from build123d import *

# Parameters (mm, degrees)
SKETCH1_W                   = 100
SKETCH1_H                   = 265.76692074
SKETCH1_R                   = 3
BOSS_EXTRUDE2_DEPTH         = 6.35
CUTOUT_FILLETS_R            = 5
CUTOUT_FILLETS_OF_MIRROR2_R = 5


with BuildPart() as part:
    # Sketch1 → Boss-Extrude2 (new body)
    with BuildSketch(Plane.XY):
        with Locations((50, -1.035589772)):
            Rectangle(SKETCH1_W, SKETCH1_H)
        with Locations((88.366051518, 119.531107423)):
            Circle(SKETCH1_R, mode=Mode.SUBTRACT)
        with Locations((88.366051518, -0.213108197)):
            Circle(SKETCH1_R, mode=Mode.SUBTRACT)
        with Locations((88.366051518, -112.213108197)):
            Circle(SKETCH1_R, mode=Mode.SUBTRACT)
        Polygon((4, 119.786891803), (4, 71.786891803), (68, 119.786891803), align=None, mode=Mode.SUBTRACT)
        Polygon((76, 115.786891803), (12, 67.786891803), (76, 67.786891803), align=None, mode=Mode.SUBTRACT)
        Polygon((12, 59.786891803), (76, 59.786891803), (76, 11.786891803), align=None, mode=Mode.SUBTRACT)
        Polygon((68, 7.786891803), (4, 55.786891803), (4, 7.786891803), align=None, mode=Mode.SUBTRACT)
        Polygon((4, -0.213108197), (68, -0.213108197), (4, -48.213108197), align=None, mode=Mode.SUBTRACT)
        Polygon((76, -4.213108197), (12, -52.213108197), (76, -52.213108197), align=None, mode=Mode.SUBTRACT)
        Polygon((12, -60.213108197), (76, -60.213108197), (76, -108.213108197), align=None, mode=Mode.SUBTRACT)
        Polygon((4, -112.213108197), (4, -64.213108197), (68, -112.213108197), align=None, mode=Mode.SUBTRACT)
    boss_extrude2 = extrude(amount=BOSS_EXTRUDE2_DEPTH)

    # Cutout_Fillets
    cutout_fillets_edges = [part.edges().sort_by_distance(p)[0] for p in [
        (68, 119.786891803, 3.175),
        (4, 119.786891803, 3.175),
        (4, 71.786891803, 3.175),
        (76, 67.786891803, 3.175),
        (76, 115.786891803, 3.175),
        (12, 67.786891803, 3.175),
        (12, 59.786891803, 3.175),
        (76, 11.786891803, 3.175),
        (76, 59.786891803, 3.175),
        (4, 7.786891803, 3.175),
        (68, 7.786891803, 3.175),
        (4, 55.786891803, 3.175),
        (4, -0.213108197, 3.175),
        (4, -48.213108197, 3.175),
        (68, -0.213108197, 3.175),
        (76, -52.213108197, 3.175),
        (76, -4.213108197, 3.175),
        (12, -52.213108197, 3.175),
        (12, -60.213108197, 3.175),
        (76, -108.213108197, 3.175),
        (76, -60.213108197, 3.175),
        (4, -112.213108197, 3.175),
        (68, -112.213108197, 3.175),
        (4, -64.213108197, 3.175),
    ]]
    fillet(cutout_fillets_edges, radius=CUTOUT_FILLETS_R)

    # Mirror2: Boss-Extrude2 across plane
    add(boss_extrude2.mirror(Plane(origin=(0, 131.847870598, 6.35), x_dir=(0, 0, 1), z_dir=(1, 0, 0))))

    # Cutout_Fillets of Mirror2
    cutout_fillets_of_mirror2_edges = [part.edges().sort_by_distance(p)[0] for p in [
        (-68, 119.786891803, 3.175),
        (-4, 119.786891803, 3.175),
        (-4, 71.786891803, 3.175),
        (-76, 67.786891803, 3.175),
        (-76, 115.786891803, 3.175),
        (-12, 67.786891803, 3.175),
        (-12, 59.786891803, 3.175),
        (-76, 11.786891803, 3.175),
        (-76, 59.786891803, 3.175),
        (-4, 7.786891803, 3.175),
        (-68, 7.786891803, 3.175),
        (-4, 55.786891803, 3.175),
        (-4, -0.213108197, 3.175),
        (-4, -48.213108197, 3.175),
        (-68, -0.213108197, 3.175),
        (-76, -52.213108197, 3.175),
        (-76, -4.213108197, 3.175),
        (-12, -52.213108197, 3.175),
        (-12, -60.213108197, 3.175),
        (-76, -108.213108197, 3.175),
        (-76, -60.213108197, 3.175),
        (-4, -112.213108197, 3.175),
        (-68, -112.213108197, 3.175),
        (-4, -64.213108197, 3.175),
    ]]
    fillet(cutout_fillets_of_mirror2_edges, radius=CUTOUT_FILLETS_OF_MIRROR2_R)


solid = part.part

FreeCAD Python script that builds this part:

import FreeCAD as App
import Part
import Sketcher

V = App.Vector


def edges_at(feature, points):
    """Names of the edges that pass closest to the given points."""
    edges = feature.Shape.Edges
    near = lambda p: min(range(len(edges)), key=lambda i: edges[i].distToShape(Part.Vertex(*p))[0])
    return sorted({f"Edge{near(p) + 1}" for p in points})


def add_polygon(sketch, points):
    """Adds a closed chain of lines whose ends are joined by coincident constraints."""
    first, n = sketch.GeometryCount, len(points)
    for a, b in zip(points, points[1:] + points[:1]):
        sketch.addGeometry(Part.LineSegment(App.Vector(*a, 0), App.Vector(*b, 0)), False)
    for i in range(n):
        sketch.addConstraint(Sketcher.Constraint("Coincident", first + i, 2, first + (i + 1) % n, 1))

doc = App.newDocument("Part")
body = doc.addObject("PartDesign::Body", "Body")

sketch1 = doc.addObject("Sketcher::SketchObject", "Sketch")
body.addObject(sketch1)
sketch1.AttachmentSupport = (doc.XY_Plane, [""])
sketch1.MapMode = "FlatFace"
add_polygon(sketch1, [(0, 131.8), (0, -133.9), (100, -133.9), (100, 131.8)])
add_polygon(sketch1, [(68, -112.2), (4, -112.2), (4, -64.2)])
add_polygon(sketch1, [(76, -108.2), (12, -60.2), (76, -60.2)])
add_polygon(sketch1, [(12, -52.2), (76, -4.2), (76, -52.2)])
add_polygon(sketch1, [(4, -48.2), (4, -0.2), (68, -0.2)])
sketch1.addGeometry(Part.Circle(V(88.4, -112.2, 0), V(0, 0, 1), 3), False)
sketch1.addGeometry(Part.Circle(V(88.4, -0.2, 0), V(0, 0, 1), 3), False)
add_polygon(sketch1, [(4, 55.8), (68, 7.8), (4, 7.8)])
add_polygon(sketch1, [(76, 11.8), (12, 59.8), (76, 59.8)])
add_polygon(sketch1, [(12, 67.8), (76, 115.8), (76, 67.8)])
add_polygon(sketch1, [(4, 71.8), (4, 119.8), (68, 119.8)])
sketch1.addGeometry(Part.Circle(V(88.4, 119.5, 0), V(0, 0, 1), 3), False)
sketch1.addConstraint([
    Sketcher.Constraint("Vertical", 0),
    Sketcher.Constraint("Horizontal", 1),
    Sketcher.Constraint("Vertical", 2),
    Sketcher.Constraint("Horizontal", 3),
    Sketcher.Constraint("Horizontal", 4),
    Sketcher.Constraint("Vertical", 5),
    Sketcher.Constraint("Horizontal", 8),
    Sketcher.Constraint("Vertical", 9),
    Sketcher.Constraint("Vertical", 11),
    Sketcher.Constraint("Horizontal", 12),
    Sketcher.Constraint("Vertical", 13),
    Sketcher.Constraint("Horizontal", 14),
    Sketcher.Constraint("Horizontal", 19),
    Sketcher.Constraint("Vertical", 20),
    Sketcher.Constraint("Horizontal", 22),
    Sketcher.Constraint("Vertical", 23),
    Sketcher.Constraint("Vertical", 25),
    Sketcher.Constraint("Horizontal", 26),
    Sketcher.Constraint("Vertical", 27),
    Sketcher.Constraint("Horizontal", 28),
    Sketcher.Constraint("Equal", 16, 17),
    Sketcher.Constraint("Equal", 17, 30),
    Sketcher.Constraint("PointOnObject", 0, 2, -2),
    Sketcher.Constraint("Parallel", 6, 7),
    Sketcher.Constraint("Parallel", 10, 15),
    Sketcher.Constraint("Parallel", 7, 18),
    Sketcher.Constraint("Parallel", 18, 21),
    Sketcher.Constraint("Parallel", 15, 24),
    Sketcher.Constraint("Parallel", 24, 29),
    Sketcher.Constraint("Horizontal", 16, 3, 4, 2),
    Sketcher.Constraint("Horizontal", 17, 3, 13, 2),
    Sketcher.Constraint("Vertical", 16, 3, 17, 3),
    Sketcher.Constraint("Vertical", 17, 3, 30, 3),
    Sketcher.Constraint("Vertical", 9, 2, 10, 2),
    Sketcher.Constraint("Vertical", 7, 2, 12, 2),
    Sketcher.Constraint("Vertical", 5, 2, 13, 2),
    Sketcher.Constraint("Vertical", 6, 2, 14, 2),
    Sketcher.Constraint("Vertical", 14, 2, 18, 2),
    Sketcher.Constraint("Vertical", 15, 2, 19, 2),
    Sketcher.Constraint("Vertical", 12, 2, 21, 2),
    Sketcher.Constraint("Vertical", 11, 2, 22, 2),
    Sketcher.Constraint("Vertical", 23, 2, 24, 2),
    Sketcher.Constraint("Vertical", 21, 2, 26, 2),
    Sketcher.Constraint("Vertical", 20, 2, 27, 2),
    Sketcher.Constraint("Vertical", 18, 2, 28, 2),
    Sketcher.Constraint("Equal", 4, 8),
    Sketcher.Constraint("Equal", 9, 11),
    Sketcher.Constraint("Diameter", 16, 6.0),
    Sketcher.Constraint("DistanceX", 1, 1, 1, 2, 100.0),
    Sketcher.Constraint("DistanceX", 4, 2, 4, 1, 64.0),
    Sketcher.Constraint("DistanceY", 5, 1, 5, 2, 48.0),
    Sketcher.Constraint("DistanceX", -1, 1, 4, 2, 4.0),
    Sketcher.Constraint("DistanceX", -1, 1, 7, 2, 12.0),
    Sketcher.Constraint("DistanceY", 16, 3, 17, 3, 112.0),
    Sketcher.Constraint("DistanceY", 5, 2, 7, 2, 4.0),
    Sketcher.Constraint("DistanceY", 10, 2, 17, 3, 4.0),
    Sketcher.Constraint("DistanceY", 14, 2, 18, 2, 8.0),
    Sketcher.Constraint("DistanceY", 20, 2, 21, 2, 4.0),
    Sketcher.Constraint("DistanceY", 22, 2, 24, 2, 56.0),
    Sketcher.Constraint("DistanceY", 26, 2, 27, 2, 52.0),
    Sketcher.Constraint("DistanceY", 0, 2, 0, 1, 265.766921),
    Sketcher.Constraint("DistanceX", -1, 1, 16, 3, 88.366052),
    Sketcher.Constraint("DistanceY", 16, 3, -1, 1, 112.213108),
    Sketcher.Constraint("DistanceY", 0, 2, -1, 1, 133.91905),
    Sketcher.Constraint("DistanceY", -1, 1, 30, 3, 119.531107),
])
pad1 = doc.addObject("PartDesign::Pad", "Pad")
body.addObject(pad1)
pad1.Profile = sketch1
pad1.Length = 6.35
doc.recompute()

fillet = doc.addObject("PartDesign::Fillet", "Fillet")
body.addObject(fillet)
fillet.Base = (pad1, edges_at(pad1, [
    (68, 119.787, 3.175),
    (4, 119.787, 3.175),
    (4, 71.787, 3.175),
    (76, 67.787, 3.175),
    (76, 115.787, 3.175),
    (12, 67.787, 3.175),
    (12, 59.787, 3.175),
    (76, 11.787, 3.175),
    (76, 59.787, 3.175),
    (4, 7.787, 3.175),
    (68, 7.787, 3.175),
    (4, 55.787, 3.175),
    (4, -0.213, 3.175),
    (4, -48.213, 3.175),
    (68, -0.213, 3.175),
    (76, -52.213, 3.175),
    (76, -4.213, 3.175),
    (12, -52.213, 3.175),
    (12, -60.213, 3.175),
    (76, -108.213, 3.175),
    (76, -60.213, 3.175),
    (4, -112.213, 3.175),
    (68, -112.213, 3.175),
    (4, -64.213, 3.175),
]))
fillet.Radius = 5
doc.recompute()

mirrored = doc.addObject("PartDesign::Mirrored", "Mirrored")
body.addObject(mirrored)
mirrored.Originals = [pad1]
mirrored.MirrorPlane = (doc.YZ_Plane, [""])
body.Tip = mirrored
doc.recompute()

fillet2 = doc.addObject("PartDesign::Fillet", "Fillet001")
body.addObject(fillet2)
fillet2.Base = (mirrored, edges_at(mirrored, [
    (-68, 119.787, 3.175),
    (-4, 119.787, 3.175),
    (-4, 71.787, 3.175),
    (-76, 67.787, 3.175),
    (-76, 115.787, 3.175),
    (-12, 67.787, 3.175),
    (-12, 59.787, 3.175),
    (-76, 11.787, 3.175),
    (-76, 59.787, 3.175),
    (-4, 7.787, 3.175),
    (-68, 7.787, 3.175),
    (-4, 55.787, 3.175),
    (-4, -0.213, 3.175),
    (-4, -48.213, 3.175),
    (-68, -0.213, 3.175),
    (-76, -52.213, 3.175),
    (-76, -4.213, 3.175),
    (-12, -52.213, 3.175),
    (-12, -60.213, 3.175),
    (-76, -108.213, 3.175),
    (-76, -60.213, 3.175),
    (-4, -112.213, 3.175),
    (-68, -112.213, 3.175),
    (-4, -64.213, 3.175),
]))
fillet2.Radius = 5

doc.recompute()
